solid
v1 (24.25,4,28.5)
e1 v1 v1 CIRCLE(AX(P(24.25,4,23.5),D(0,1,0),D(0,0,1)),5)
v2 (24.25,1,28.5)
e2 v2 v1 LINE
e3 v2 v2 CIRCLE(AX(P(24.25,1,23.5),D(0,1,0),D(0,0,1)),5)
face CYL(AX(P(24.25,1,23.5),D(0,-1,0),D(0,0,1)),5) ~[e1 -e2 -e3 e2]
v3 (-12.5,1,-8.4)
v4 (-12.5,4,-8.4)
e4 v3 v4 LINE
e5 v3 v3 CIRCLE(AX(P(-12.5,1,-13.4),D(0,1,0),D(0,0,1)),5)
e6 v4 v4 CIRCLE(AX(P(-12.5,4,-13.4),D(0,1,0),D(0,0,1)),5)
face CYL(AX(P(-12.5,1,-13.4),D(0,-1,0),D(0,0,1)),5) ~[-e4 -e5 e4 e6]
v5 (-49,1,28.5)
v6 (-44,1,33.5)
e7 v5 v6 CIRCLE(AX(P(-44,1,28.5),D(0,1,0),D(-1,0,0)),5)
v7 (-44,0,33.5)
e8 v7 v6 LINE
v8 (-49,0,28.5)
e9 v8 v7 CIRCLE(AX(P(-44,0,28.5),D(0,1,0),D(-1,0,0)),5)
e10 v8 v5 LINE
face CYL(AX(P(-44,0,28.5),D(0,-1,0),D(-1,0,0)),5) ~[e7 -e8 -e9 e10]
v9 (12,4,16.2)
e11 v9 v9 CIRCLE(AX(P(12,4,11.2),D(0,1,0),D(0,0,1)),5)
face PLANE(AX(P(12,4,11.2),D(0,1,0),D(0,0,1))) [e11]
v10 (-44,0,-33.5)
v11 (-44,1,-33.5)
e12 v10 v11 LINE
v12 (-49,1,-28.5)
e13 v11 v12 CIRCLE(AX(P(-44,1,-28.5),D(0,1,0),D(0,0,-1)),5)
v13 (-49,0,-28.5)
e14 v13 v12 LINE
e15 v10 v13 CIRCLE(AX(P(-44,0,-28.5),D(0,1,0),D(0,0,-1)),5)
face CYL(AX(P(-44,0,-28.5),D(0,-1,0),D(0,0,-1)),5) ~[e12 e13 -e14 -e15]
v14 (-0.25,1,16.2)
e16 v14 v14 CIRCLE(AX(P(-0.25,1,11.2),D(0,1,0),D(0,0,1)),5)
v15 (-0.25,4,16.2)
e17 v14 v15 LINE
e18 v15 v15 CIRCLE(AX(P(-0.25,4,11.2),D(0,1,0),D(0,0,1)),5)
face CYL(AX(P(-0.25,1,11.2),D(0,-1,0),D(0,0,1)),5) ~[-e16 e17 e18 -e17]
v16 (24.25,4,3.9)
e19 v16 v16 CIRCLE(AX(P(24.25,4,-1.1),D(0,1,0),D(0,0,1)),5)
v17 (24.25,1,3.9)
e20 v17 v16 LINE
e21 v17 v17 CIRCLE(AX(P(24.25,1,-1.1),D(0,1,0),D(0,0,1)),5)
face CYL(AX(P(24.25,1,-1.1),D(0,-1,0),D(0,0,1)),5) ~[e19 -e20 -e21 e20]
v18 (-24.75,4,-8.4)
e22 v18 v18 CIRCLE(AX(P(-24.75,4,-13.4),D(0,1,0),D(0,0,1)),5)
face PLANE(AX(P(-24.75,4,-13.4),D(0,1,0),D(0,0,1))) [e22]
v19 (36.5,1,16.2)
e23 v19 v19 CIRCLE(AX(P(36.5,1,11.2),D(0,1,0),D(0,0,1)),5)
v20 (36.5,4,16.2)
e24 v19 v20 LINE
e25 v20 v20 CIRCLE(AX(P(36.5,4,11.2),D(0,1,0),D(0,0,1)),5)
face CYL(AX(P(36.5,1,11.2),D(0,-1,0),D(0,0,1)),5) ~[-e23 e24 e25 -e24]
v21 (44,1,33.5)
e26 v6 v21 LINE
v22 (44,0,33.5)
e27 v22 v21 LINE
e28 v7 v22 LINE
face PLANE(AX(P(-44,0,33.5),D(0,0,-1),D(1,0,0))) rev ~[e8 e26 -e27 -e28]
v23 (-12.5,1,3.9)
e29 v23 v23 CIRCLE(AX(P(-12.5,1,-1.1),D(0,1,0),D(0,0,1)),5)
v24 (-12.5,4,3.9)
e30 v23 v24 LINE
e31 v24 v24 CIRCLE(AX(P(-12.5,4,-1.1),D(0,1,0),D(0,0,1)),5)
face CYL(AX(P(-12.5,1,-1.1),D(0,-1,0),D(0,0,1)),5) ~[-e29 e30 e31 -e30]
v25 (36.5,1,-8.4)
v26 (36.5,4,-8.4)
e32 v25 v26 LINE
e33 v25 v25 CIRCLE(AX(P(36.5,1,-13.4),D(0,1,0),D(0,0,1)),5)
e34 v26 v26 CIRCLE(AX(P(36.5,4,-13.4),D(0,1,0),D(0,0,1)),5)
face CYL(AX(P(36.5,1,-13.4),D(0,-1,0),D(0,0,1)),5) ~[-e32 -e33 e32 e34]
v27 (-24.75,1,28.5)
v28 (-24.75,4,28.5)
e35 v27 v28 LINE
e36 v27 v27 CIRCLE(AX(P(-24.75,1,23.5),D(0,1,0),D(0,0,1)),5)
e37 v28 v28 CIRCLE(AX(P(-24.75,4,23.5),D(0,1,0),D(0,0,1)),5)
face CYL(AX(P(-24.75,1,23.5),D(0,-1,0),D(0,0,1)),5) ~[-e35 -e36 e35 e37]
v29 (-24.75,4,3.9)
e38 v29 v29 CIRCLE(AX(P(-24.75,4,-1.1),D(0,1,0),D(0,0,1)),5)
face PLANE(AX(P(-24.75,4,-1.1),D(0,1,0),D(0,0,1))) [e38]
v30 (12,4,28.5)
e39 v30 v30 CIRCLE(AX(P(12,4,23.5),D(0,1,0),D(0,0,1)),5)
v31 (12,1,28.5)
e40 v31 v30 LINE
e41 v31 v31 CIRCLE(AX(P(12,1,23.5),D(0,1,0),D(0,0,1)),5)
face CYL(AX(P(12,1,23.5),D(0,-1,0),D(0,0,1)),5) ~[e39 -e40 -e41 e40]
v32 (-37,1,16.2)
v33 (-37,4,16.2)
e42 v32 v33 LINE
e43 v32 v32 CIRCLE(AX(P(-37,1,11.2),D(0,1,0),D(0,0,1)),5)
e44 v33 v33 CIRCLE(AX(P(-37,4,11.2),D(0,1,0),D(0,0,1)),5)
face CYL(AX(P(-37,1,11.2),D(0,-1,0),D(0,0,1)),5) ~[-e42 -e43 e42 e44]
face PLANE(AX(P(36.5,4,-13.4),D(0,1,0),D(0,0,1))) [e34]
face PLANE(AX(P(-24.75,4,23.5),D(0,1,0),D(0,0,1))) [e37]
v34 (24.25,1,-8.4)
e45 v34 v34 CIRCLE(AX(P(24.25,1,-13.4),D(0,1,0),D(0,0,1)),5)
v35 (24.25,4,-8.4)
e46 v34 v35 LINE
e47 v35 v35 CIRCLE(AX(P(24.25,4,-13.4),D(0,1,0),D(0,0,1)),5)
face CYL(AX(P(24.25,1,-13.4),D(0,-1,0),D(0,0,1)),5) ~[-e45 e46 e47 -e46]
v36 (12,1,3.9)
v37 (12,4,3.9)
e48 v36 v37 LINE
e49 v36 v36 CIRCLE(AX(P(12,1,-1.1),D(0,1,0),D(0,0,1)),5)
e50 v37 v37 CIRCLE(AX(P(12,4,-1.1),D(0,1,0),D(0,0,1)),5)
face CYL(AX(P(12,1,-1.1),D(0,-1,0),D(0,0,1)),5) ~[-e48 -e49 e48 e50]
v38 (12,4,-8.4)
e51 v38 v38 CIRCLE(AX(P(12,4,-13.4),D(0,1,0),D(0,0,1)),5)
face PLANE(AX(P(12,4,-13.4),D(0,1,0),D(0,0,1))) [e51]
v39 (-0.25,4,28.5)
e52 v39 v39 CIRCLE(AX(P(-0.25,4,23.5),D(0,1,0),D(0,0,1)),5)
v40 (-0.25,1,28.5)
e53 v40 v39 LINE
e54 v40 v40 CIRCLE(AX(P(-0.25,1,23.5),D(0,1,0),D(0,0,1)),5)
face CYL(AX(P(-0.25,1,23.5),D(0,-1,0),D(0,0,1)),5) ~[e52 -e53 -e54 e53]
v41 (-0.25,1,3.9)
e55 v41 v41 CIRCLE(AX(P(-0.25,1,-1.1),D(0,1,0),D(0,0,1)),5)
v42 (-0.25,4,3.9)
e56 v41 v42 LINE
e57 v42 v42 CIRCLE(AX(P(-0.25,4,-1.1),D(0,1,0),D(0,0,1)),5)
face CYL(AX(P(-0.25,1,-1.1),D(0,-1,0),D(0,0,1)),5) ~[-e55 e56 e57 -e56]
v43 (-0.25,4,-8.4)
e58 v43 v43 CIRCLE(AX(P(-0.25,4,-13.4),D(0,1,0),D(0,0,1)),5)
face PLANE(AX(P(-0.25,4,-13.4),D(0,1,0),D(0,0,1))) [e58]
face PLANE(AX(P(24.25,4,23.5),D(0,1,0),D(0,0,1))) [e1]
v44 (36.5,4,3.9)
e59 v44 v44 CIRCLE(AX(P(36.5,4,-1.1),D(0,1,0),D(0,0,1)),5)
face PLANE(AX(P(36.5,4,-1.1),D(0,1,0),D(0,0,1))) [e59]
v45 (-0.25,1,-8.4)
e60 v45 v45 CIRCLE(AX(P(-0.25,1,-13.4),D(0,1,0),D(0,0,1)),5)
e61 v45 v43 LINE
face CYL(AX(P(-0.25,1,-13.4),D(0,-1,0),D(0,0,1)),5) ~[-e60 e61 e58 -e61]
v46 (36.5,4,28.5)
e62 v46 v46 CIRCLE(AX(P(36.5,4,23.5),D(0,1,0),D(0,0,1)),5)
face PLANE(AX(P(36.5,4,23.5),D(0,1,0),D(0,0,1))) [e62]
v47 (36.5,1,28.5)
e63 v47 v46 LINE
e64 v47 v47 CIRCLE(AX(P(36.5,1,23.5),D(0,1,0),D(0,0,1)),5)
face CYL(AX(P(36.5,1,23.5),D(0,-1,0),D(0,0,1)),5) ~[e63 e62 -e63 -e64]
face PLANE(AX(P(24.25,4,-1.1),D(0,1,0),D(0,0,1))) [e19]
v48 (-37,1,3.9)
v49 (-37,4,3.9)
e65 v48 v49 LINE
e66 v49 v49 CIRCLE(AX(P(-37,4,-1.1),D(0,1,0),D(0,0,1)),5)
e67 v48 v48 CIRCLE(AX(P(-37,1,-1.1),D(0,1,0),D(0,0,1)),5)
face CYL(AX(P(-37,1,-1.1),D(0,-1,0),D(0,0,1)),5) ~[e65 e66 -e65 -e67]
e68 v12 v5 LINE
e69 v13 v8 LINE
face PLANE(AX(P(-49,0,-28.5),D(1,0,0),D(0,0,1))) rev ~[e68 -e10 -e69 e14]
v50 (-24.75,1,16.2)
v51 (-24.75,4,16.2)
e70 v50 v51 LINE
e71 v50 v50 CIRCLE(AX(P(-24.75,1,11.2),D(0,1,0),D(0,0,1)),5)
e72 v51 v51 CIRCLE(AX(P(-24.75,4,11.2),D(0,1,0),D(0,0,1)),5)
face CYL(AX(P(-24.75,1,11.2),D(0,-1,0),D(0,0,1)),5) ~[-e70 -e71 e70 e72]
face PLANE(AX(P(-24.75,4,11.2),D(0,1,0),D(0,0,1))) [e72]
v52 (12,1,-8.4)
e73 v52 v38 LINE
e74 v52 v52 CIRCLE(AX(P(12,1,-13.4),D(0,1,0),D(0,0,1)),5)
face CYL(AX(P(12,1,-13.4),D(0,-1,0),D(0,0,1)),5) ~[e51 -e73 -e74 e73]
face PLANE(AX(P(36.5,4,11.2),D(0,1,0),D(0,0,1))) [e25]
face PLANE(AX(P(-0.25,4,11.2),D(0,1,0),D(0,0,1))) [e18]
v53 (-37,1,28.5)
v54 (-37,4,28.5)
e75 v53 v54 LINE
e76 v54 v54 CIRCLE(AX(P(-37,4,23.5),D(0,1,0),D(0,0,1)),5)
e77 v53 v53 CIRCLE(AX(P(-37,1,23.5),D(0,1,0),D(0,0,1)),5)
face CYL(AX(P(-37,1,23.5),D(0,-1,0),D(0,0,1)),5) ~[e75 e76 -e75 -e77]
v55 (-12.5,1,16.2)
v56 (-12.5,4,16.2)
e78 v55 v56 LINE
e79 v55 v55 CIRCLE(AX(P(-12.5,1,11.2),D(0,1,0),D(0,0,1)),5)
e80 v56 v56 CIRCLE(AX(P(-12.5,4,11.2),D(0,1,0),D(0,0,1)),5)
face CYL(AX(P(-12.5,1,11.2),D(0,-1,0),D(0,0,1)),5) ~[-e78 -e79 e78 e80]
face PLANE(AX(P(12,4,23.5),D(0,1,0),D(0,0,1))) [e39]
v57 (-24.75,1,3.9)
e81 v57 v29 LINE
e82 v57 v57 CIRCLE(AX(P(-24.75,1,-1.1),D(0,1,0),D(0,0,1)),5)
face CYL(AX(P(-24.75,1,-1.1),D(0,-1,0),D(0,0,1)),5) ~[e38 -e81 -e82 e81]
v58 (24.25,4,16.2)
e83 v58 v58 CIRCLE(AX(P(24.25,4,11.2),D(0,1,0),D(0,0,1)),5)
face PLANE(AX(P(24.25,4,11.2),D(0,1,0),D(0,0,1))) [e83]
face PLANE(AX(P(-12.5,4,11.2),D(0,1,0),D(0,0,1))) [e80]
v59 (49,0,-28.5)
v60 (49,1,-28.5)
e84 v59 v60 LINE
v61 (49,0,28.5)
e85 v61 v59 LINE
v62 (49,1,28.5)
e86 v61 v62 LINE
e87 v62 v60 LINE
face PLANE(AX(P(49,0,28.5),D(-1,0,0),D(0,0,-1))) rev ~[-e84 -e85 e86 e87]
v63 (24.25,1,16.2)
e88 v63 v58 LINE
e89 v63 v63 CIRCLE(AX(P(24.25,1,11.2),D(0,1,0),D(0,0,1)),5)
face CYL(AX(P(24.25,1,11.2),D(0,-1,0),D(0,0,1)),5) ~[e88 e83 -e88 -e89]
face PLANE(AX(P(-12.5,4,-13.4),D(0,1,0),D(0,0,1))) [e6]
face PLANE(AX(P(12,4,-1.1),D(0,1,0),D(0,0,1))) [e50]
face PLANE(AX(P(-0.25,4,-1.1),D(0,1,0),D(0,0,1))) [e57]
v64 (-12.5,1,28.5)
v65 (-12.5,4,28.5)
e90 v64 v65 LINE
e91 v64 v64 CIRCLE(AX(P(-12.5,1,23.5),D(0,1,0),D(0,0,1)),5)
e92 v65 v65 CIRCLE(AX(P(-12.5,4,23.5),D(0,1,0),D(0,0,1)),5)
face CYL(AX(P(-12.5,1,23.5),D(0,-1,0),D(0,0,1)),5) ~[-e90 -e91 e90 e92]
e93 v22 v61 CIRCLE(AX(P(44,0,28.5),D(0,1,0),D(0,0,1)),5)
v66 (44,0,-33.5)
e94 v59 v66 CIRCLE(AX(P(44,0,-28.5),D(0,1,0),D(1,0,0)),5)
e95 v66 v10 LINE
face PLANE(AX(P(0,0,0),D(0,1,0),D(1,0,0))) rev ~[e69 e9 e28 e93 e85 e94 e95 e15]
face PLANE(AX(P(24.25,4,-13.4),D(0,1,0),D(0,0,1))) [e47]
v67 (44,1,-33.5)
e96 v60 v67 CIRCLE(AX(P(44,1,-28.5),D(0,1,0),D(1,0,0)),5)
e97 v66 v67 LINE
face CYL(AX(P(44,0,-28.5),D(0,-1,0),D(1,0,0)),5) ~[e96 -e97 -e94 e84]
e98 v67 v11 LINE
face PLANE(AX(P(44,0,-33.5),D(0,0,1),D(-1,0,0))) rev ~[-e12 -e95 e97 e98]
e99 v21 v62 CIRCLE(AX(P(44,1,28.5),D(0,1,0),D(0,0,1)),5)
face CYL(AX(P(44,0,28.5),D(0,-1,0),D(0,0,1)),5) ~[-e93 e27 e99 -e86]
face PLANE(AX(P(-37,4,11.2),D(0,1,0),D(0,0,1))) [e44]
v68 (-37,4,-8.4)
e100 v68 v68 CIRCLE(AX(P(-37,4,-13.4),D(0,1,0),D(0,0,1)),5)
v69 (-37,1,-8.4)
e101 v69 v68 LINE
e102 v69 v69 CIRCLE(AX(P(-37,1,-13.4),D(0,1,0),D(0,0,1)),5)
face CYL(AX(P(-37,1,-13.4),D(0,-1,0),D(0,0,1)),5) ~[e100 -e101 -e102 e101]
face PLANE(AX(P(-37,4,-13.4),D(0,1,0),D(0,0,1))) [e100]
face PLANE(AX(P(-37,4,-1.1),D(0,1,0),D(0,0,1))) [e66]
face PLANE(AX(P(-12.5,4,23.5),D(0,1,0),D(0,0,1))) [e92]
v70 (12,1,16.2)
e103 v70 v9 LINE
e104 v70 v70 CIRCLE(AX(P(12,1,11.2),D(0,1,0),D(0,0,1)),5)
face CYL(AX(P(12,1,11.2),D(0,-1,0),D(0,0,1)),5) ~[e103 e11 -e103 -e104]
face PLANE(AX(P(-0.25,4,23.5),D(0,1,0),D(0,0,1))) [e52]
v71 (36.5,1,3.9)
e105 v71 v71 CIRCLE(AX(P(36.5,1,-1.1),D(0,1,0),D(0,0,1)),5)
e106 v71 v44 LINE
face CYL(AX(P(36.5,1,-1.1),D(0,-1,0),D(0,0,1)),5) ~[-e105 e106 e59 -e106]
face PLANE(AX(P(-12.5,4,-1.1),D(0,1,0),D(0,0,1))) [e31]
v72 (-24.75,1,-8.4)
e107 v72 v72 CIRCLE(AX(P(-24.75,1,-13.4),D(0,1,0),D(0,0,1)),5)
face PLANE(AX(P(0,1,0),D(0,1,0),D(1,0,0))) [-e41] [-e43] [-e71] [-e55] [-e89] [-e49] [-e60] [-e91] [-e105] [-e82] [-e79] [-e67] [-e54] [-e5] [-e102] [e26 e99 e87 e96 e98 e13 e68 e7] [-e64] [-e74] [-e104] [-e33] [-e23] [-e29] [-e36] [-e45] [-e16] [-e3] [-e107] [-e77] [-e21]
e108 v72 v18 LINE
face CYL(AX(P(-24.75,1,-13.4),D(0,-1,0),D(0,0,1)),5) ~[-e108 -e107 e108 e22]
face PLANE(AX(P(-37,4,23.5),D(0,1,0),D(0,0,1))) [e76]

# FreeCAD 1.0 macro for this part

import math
import FreeCAD as App
import Part
import Sketcher

doc = App.newDocument("Part")
body = doc.addObject("PartDesign::Body", "Body")

sketch1 = body.newObject("Sketcher::SketchObject", "Sketch")
sketch1.AttachmentSupport = (doc.getObject("XZ_Plane"), [""])
sketch1.MapMode = "FlatFace"
sketch1.addGeometry([
    Part.LineSegment(App.Vector(-44, 34, 0), App.Vector(44, 34, 0)),
    Part.ArcOfCircle(Part.Circle(App.Vector(44, 28, 0), App.Vector(0, 0, 1), 5), math.radians(0), math.radians(90)),
    Part.LineSegment(App.Vector(49, 28, 0), App.Vector(49, -28, 0)),
    Part.ArcOfCircle(Part.Circle(App.Vector(44, -28, 0), App.Vector(0, 0, 1), 5), math.radians(-90), math.radians(0)),
    Part.LineSegment(App.Vector(44, -34, 0), App.Vector(-44, -34, 0)),
    Part.ArcOfCircle(Part.Circle(App.Vector(-44, -28, 0), App.Vector(0, 0, 1), 5), math.radians(180), math.radians(270)),
    Part.LineSegment(App.Vector(-49, -28, 0), App.Vector(-49, 28, 0)),
    Part.ArcOfCircle(Part.Circle(App.Vector(-44, 28, 0), App.Vector(0, 0, 1), 5), math.radians(90), math.radians(180)),
], False)
sketch1.addConstraint([
    Sketcher.Constraint("Tangent", 0, 2, 1, 2),
    Sketcher.Constraint("Tangent", 1, 1, 2, 1),
    Sketcher.Constraint("Tangent", 2, 2, 3, 2),
    Sketcher.Constraint("Tangent", 3, 1, 4, 1),
    Sketcher.Constraint("Tangent", 4, 2, 5, 2),
    Sketcher.Constraint("Tangent", 5, 1, 6, 1),
    Sketcher.Constraint("Tangent", 6, 2, 7, 2),
    Sketcher.Constraint("Tangent", 7, 1, 0, 1),
    Sketcher.Constraint("Horizontal", 0),
    Sketcher.Constraint("Vertical", 2),
    Sketcher.Constraint("Horizontal", 4),
    Sketcher.Constraint("Vertical", 6),
    Sketcher.Constraint("Equal", 1, 3),
    Sketcher.Constraint("Equal", 3, 5),
    Sketcher.Constraint("Equal", 5, 7),
    Sketcher.Constraint("Symmetric", 1, 3, 5, 3, -1, 1),
    Sketcher.Constraint("Radius", 1, 5.0),
    Sketcher.Constraint("DistanceX", 0, 1, 0, 2, 88.0),
    Sketcher.Constraint("DistanceY", 2, 2, 2, 1, 57.0),
])
pad1 = body.newObject("PartDesign::Pad", "Pad")
pad1.Profile = sketch1
pad1.Length = 1
pad1.Reversed = True

sketch2 = body.newObject("Sketcher::SketchObject", "Sketch001")
sketch2.AttachmentSupport = (doc.getObject("XZ_Plane"), [""])
sketch2.MapMode = "FlatFace"
sketch2.AttachmentOffset = App.Placement(App.Vector(0, 0, -1), App.Rotation())
sketch2.addGeometry([
    Part.Circle(App.Vector(-37, 24, 0), App.Vector(0, 0, 1), 5),
    Part.Circle(App.Vector(-25, 24, 0), App.Vector(0, 0, 1), 5),
    Part.Circle(App.Vector(-12, 24, 0), App.Vector(0, 0, 1), 5),
    Part.Circle(App.Vector(0, 24, 0), App.Vector(0, 0, 1), 5),
    Part.Circle(App.Vector(12, 24, 0), App.Vector(0, 0, 1), 5),
    Part.Circle(App.Vector(24, 24, 0), App.Vector(0, 0, 1), 5),
    Part.Circle(App.Vector(36, 24, 0), App.Vector(0, 0, 1), 5),
], False)
sketch2.addConstraint([
    Sketcher.Constraint("Equal", 0, 1),
    Sketcher.Constraint("Equal", 1, 2),
    Sketcher.Constraint("Equal", 2, 3),
    Sketcher.Constraint("Equal", 3, 4),
    Sketcher.Constraint("Equal", 4, 5),
    Sketcher.Constraint("Equal", 5, 6),
    Sketcher.Constraint("Horizontal", 0, 3, 1, 3),
    Sketcher.Constraint("Horizontal", 1, 3, 2, 3),
    Sketcher.Constraint("Horizontal", 2, 3, 3, 3),
    Sketcher.Constraint("Horizontal", 3, 3, 4, 3),
    Sketcher.Constraint("Horizontal", 4, 3, 5, 3),
    Sketcher.Constraint("Horizontal", 5, 3, 6, 3),
    Sketcher.Constraint("Diameter", 0, 10.0),
    Sketcher.Constraint("DistanceX", 0, 3, -1, 1, 37.0),
    Sketcher.Constraint("DistanceX", -1, 1, 4, 3, 12.0),
    Sketcher.Constraint("DistanceX", 1, 3, 5, 3, 49.0),
    Sketcher.Constraint("DistanceX", 2, 3, 6, 3, 49.0),
    Sketcher.Constraint("DistanceY", -1, 1, 0, 3, 23.5),
    Sketcher.Constraint("DistanceX", 2, 3, -1, 1, 12.5),
    Sketcher.Constraint("DistanceX", 1, 3, 3, 3, 24.5),
    Sketcher.Constraint("DistanceX", 1, 3, -1, 1, 24.75),
])
pad2 = body.newObject("PartDesign::Pad", "Pad001")
pad2.Profile = sketch2
pad2.Length = 3
pad2.Reversed = True
doc.recompute()

linearpattern = body.newObject("PartDesign::LinearPattern", "LinearPattern")
linearpattern.Originals = [pad2]
linearpattern.Direction = (doc.getObject("Z_Axis"), [""])
linearpattern.Mode = "offset"
linearpattern.Offset = 12.3
linearpattern.Occurrences = 4
linearpattern.Reversed = True
body.Tip = linearpattern

doc.recompute()
